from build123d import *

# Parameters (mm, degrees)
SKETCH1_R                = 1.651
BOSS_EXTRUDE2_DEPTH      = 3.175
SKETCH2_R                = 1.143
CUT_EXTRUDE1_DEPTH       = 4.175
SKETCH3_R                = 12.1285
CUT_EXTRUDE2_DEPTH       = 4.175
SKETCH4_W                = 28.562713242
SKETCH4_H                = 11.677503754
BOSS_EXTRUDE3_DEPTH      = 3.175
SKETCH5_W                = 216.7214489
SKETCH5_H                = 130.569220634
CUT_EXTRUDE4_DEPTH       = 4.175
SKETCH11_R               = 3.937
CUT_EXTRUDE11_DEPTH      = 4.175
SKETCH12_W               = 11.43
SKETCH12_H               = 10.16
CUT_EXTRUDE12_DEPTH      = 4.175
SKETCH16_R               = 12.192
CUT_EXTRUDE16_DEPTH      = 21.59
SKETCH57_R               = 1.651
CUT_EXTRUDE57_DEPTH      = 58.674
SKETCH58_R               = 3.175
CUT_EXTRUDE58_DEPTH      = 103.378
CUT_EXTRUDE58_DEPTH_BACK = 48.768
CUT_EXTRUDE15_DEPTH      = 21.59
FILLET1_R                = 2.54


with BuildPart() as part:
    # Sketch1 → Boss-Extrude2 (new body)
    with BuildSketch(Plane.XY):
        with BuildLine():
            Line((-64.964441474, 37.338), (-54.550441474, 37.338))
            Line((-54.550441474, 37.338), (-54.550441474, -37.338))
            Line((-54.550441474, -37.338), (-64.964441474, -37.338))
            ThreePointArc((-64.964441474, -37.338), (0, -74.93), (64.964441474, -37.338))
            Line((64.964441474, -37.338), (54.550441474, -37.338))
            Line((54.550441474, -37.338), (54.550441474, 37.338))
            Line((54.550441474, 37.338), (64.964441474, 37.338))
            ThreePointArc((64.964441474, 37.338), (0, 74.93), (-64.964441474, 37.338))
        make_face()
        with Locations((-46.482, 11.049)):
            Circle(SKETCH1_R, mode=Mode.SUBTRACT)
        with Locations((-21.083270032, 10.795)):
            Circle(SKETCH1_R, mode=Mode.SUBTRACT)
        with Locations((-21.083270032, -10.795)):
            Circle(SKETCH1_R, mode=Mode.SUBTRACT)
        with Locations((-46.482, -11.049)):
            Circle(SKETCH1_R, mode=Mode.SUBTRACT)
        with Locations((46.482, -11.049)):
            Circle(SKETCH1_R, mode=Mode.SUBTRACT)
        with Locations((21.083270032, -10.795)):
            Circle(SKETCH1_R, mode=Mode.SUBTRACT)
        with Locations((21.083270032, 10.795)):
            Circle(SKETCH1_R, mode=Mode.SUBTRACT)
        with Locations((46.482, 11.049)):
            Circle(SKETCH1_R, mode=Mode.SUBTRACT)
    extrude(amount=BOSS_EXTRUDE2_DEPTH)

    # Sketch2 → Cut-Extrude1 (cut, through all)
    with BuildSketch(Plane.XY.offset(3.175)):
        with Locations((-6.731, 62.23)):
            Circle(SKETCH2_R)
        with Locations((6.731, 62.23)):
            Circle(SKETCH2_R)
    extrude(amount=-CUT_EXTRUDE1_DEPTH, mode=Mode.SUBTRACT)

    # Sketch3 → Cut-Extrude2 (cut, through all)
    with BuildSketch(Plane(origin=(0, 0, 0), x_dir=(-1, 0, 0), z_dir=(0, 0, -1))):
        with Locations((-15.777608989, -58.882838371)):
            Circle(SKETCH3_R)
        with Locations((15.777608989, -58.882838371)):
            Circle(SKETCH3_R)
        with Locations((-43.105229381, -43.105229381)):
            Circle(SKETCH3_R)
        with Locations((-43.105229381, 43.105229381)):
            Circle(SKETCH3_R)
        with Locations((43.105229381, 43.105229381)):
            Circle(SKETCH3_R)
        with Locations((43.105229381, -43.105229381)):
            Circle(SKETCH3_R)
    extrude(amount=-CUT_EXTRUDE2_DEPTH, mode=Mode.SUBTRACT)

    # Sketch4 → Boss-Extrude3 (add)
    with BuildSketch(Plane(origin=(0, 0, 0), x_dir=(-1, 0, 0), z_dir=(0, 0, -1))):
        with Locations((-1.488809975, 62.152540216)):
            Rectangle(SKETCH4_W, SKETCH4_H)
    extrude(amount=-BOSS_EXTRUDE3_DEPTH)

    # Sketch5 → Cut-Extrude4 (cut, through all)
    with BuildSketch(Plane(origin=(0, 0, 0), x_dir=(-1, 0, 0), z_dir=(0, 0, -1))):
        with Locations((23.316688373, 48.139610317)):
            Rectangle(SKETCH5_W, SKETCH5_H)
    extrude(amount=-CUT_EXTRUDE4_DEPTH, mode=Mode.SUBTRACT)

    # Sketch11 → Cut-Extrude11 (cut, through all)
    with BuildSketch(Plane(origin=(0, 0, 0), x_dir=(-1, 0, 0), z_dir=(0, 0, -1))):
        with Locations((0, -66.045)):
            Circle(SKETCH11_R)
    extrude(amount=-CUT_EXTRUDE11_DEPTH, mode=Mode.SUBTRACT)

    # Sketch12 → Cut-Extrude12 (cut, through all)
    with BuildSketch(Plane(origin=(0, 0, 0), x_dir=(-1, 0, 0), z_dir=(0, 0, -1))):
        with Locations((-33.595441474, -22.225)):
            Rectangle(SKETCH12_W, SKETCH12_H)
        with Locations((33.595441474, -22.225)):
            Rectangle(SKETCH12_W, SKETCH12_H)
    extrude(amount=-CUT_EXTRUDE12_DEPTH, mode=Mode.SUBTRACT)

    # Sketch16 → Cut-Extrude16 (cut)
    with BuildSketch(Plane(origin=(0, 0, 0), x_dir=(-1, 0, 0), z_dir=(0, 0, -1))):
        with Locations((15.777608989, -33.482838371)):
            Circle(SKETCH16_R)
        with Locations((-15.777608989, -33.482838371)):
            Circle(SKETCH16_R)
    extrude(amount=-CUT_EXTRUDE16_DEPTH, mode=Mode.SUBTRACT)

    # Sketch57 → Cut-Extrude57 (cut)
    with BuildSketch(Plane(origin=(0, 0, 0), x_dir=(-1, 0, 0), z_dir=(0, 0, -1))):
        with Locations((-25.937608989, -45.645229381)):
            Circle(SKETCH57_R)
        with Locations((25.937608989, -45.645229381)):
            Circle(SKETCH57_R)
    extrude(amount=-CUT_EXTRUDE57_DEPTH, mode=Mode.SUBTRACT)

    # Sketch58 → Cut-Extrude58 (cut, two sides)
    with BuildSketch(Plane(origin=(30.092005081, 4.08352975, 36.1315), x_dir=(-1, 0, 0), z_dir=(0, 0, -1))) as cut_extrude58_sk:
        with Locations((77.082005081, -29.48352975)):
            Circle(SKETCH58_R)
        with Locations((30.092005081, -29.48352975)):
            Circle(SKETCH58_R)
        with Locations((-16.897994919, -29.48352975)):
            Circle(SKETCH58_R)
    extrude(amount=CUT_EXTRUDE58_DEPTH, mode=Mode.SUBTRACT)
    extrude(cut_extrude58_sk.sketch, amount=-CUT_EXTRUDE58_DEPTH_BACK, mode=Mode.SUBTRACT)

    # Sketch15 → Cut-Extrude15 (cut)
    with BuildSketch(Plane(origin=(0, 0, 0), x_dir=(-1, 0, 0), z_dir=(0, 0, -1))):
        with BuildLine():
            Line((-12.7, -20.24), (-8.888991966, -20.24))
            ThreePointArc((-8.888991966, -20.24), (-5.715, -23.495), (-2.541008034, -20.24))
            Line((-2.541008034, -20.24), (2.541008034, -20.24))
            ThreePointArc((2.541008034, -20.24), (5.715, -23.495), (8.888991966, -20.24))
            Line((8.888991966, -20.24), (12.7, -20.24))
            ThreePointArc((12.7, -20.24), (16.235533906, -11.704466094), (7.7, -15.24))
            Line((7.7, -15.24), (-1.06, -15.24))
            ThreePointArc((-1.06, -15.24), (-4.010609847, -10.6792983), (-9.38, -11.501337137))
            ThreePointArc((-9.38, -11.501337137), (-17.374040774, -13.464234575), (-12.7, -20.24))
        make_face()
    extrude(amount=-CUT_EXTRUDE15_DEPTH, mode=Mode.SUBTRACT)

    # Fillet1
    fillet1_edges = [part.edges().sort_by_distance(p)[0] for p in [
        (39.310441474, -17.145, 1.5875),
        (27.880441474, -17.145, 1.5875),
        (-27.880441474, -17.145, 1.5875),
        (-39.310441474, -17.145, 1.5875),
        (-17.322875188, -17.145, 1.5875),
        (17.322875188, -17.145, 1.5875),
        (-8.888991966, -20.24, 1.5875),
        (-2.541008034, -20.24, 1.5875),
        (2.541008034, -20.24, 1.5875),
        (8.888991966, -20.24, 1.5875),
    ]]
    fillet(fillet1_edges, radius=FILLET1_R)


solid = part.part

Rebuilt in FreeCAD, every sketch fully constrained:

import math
import FreeCAD as App
import Part
import Sketcher

V = App.Vector
Q = App.Units.Quantity


def edges_at(feature, points):
    """Names of the edges that pass closest to the given points."""
    edges = feature.Shape.Edges
    near = lambda p: min(range(len(edges)), key=lambda i: edges[i].distToShape(Part.Vertex(*p))[0])
    return sorted({f"Edge{near(p) + 1}" for p in points})

doc = App.newDocument("Part")
body = doc.addObject("PartDesign::Body", "Body")

# Sketch on XY plane
sketch1 = body.newObject("Sketcher::SketchObject", "Sketch")
sketch1.AttachmentSupport = (doc.getObject("XY_Plane"), [""])
sketch1.MapMode = "FlatFace"
sketch1.addGeometry([
    Part.LineSegment(V(-65, 37.3, 0), V(-54.6, 37.3, 0)),  # 0
    Part.LineSegment(V(-54.6, 37.3, 0), V(-54.6, -37.3, 0)),  # 1
    Part.LineSegment(V(-54.6, -37.3, 0), V(-65, -37.3, 0)),  # 2
    Part.ArcOfCircle(Part.Circle(V(0, 0, 0), V(0, 0, 1), 74.9), math.radians(-150), math.radians(-30)),  # 3
    Part.LineSegment(V(65, -37.3, 0), V(54.6, -37.3, 0)),  # 4
    Part.LineSegment(V(54.6, -37.3, 0), V(54.6, 37.3, 0)),  # 5
    Part.LineSegment(V(54.6, 37.3, 0), V(65, 37.3, 0)),  # 6
    Part.ArcOfCircle(Part.Circle(V(0, 0, 0), V(0, 0, 1), 74.9), math.radians(30), math.radians(150)),  # 7
    Part.Circle(V(-46.5, -11, 0), V(0, 0, 1), 1.7),  # 8
    Part.Circle(V(-21.1, -10.8, 0), V(0, 0, 1), 1.7),  # 9
    Part.Circle(V(21.1, -10.8, 0), V(0, 0, 1), 1.7),  # 10
    Part.Circle(V(46.5, -11, 0), V(0, 0, 1), 1.7),  # 11
    Part.Circle(V(-46.5, 11, 0), V(0, 0, 1), 1.7),  # 12
    Part.Circle(V(-21.1, 10.8, 0), V(0, 0, 1), 1.7),  # 13
    Part.Circle(V(21.1, 10.8, 0), V(0, 0, 1), 1.7),  # 14
    Part.Circle(V(46.5, 11, 0), V(0, 0, 1), 1.7),  # 15
], False)
sketch1.addConstraint([
    Sketcher.Constraint("Coincident", 0, 2, 1, 1),
    Sketcher.Constraint("Coincident", 1, 2, 2, 1),
    Sketcher.Constraint("Coincident", 2, 2, 3, 1),
    Sketcher.Constraint("Coincident", 3, 2, 4, 1),
    Sketcher.Constraint("Coincident", 4, 2, 5, 1),
    Sketcher.Constraint("Coincident", 5, 2, 6, 1),
    Sketcher.Constraint("Coincident", 6, 2, 7, 1),
    Sketcher.Constraint("Coincident", 7, 2, 0, 1),
    Sketcher.Constraint("Horizontal", 0),
    Sketcher.Constraint("Vertical", 1),
    Sketcher.Constraint("Horizontal", 2),
    Sketcher.Constraint("Horizontal", 4),
    Sketcher.Constraint("Vertical", 5),
    Sketcher.Constraint("Horizontal", 6),
    Sketcher.Constraint("Coincident", 3, 3, -1, 1),
    Sketcher.Constraint("Coincident", 7, 3, -1, 1),
    Sketcher.Constraint("Equal", 3, 7),
    Sketcher.Constraint("Equal", 8, 9),
    Sketcher.Constraint("Equal", 9, 10),
    Sketcher.Constraint("Equal", 10, 11),
    Sketcher.Constraint("Equal", 11, 12),
    Sketcher.Constraint("Equal", 12, 13),
    Sketcher.Constraint("Equal", 13, 14),
    Sketcher.Constraint("Equal", 14, 15),
    Sketcher.Constraint("Symmetric", 11, 3, 12, 3, -1, 1),
    Sketcher.Constraint("Symmetric", 10, 3, 13, 3, -1, 1),
    Sketcher.Constraint("Symmetric", 9, 3, 14, 3, -1, 1),
    Sketcher.Constraint("Symmetric", 8, 3, 15, 3, -1, 1),
    Sketcher.Constraint("Symmetric", 0, 2, 4, 2, -1, 1),
    Sketcher.Constraint("Symmetric", 9, 3, 10, 3, -2),
    Sketcher.Constraint("Symmetric", 8, 3, 11, 3, -2),
    Sketcher.Constraint("Horizontal", 2, 2, 3, 2),
    Sketcher.Constraint("Horizontal", 0, 2, 5, 2),
    Sketcher.Constraint("Diameter", 8, Q("0.13 in")),
    Sketcher.Constraint("Radius", 3, Q("2.95 in")),
    Sketcher.Constraint("DistanceX", 0, 1, 0, 2, Q("0.41 in")),
    Sketcher.Constraint("DistanceY", 1, 2, 1, 1, Q("2.94 in")),
    Sketcher.Constraint("DistanceX", 8, 3, -1, 1, Q("1.83 in")),
    Sketcher.Constraint("DistanceY", 8, 3, 9, 3, Q("0.01 in")),
    Sketcher.Constraint("DistanceY", 8, 3, 12, 3, Q("0.87 in")),
    Sketcher.Constraint("DistanceX", 9, 3, 10, 3, Q("1.6601 in")),
])
pad1 = body.newObject("PartDesign::Pad", "Pad")
pad1.Profile = sketch1
pad1.Length = Q("0.125 in")

# Sketch on XY plane
sketch2 = body.newObject("Sketcher::SketchObject", "Sketch001")
sketch2.AttachmentSupport = (doc.getObject("XY_Plane"), [""])
sketch2.MapMode = "FlatFace"
sketch2.AttachmentOffset = App.Placement(V(0, 0, 0.125 * 25.4), App.Rotation())
sketch2.addGeometry([
    Part.Circle(V(-6.7, 62.2, 0), V(0, 0, 1), 1.1),
    Part.Circle(V(6.7, 62.2, 0), V(0, 0, 1), 1.1),
], False)
sketch2.addConstraint([
    Sketcher.Constraint("Equal", 0, 1),
    Sketcher.Constraint("Symmetric", 0, 3, 1, 3, -2),
    Sketcher.Constraint("Diameter", 0, Q("0.09 in")),
    Sketcher.Constraint("DistanceY", -1, 1, 0, 3, Q("2.45 in")),
    Sketcher.Constraint("DistanceX", 0, 3, 1, 3, Q("0.53 in")),
])
pocket1 = body.newObject("PartDesign::Pocket", "Pocket")
pocket1.Profile = sketch2
pocket1.Type = "ThroughAll"

# Sketch on XY plane
sketch3 = body.newObject("Sketcher::SketchObject", "Sketch002")
sketch3.AttachmentSupport = (doc.getObject("XY_Plane"), [""])
sketch3.MapMode = "FlatFace"
sketch3.addGeometry([
    Part.Circle(V(16, -59, 0), V(0, 0, 1), 12),  # 0
    Part.Circle(V(-16, -59, 0), V(0, 0, 1), 12),  # 1
    Part.Circle(V(43, -43, 0), V(0, 0, 1), 12),  # 2
    Part.Circle(V(43, 43, 0), V(0, 0, 1), 12),  # 3
    Part.Circle(V(-43, 43, 0), V(0, 0, 1), 12),  # 4
    Part.Circle(V(-43, -43, 0), V(0, 0, 1), 12),  # 5
], False)
sketch3.addConstraint([
    Sketcher.Constraint("Equal", 0, 1),
    Sketcher.Constraint("Equal", 1, 2),
    Sketcher.Constraint("Equal", 2, 3),
    Sketcher.Constraint("Equal", 3, 4),
    Sketcher.Constraint("Equal", 4, 5),
    Sketcher.Constraint("Symmetric", 2, 3, 4, 3, -1, 1),
    Sketcher.Constraint("Symmetric", 3, 3, 5, 3, -1, 1),
    Sketcher.Constraint("Symmetric", 0, 3, 1, 3, -2),
    Sketcher.Constraint("Symmetric", 3, 3, 4, 3, -2),
    Sketcher.Constraint("Diameter", 0, Q("0.955 in")),
    Sketcher.Constraint("DistanceX", -1, 1, 0, 3, 15.777609),
    Sketcher.Constraint("DistanceY", 0, 3, -1, 1, 58.882838),
    Sketcher.Constraint("DistanceX", -1, 1, 2, 3, 43.105229),
    Sketcher.Constraint("DistanceY", 2, 3, -1, 1, 43.105229),
])
pocket2 = body.newObject("PartDesign::Pocket", "Pocket001")
pocket2.Profile = sketch3
pocket2.Type = "ThroughAll"
pocket2.Reversed = True

# Sketch on XY plane
sketch4 = body.newObject("Sketcher::SketchObject", "Sketch003")
sketch4.AttachmentSupport = (doc.getObject("XY_Plane"), [""])
sketch4.MapMode = "FlatFace"
sketch4.addGeometry([
    Part.LineSegment(V(16, 68, 0), V(16, 56, 0)),
    Part.LineSegment(V(16, 56, 0), V(-13, 56, 0)),
    Part.LineSegment(V(-13, 56, 0), V(-13, 68, 0)),
    Part.LineSegment(V(-13, 68, 0), V(16, 68, 0)),
], False)
sketch4.addConstraint([
    Sketcher.Constraint("Coincident", 0, 2, 1, 1),
    Sketcher.Constraint("Coincident", 1, 2, 2, 1),
    Sketcher.Constraint("Coincident", 2, 2, 3, 1),
    Sketcher.Constraint("Coincident", 3, 2, 0, 1),
    Sketcher.Constraint("Vertical", 0),
    Sketcher.Constraint("Horizontal", 1),
    Sketcher.Constraint("Vertical", 2),
    Sketcher.Constraint("Horizontal", 3),
    Sketcher.Constraint("DistanceX", 1, 2, 1, 1, 28.562713),
    Sketcher.Constraint("DistanceY", 0, 2, 0, 1, 11.677504),
    Sketcher.Constraint("DistanceY", -1, 1, 0, 2, 56.313788),
    Sketcher.Constraint("DistanceX", -1, 1, 0, 2, 15.770167),
])
pad2 = body.newObject("PartDesign::Pad", "Pad001")
pad2.Profile = sketch4
pad2.Length = Q("0.125 in")

# Sketch on XY plane
sketch5 = body.newObject("Sketcher::SketchObject", "Sketch004")
sketch5.AttachmentSupport = (doc.getObject("XY_Plane"), [""])
sketch5.MapMode = "FlatFace"
sketch5.addGeometry([
    Part.LineSegment(V(85, 113, 0), V(85, -17, 0)),
    Part.LineSegment(V(85, -17, 0), V(-132, -17, 0)),
    Part.LineSegment(V(-132, -17, 0), V(-132, 113, 0)),
    Part.LineSegment(V(-132, 113, 0), V(85, 113, 0)),
], False)
sketch5.addConstraint([
    Sketcher.Constraint("Coincident", 0, 2, 1, 1),
    Sketcher.Constraint("Coincident", 1, 2, 2, 1),
    Sketcher.Constraint("Coincident", 2, 2, 3, 1),
    Sketcher.Constraint("Coincident", 3, 2, 0, 1),
    Sketcher.Constraint("Vertical", 0),
    Sketcher.Constraint("Horizontal", 1),
    Sketcher.Constraint("Vertical", 2),
    Sketcher.Constraint("Horizontal", 3),
    Sketcher.Constraint("DistanceY", 0, 2, -1, 1, Q("0.675 in")),
    Sketcher.Constraint("DistanceX", 1, 2, 1, 1, 216.721449),
    Sketcher.Constraint("DistanceY", 0, 2, 0, 1, 130.569221),
    Sketcher.Constraint("DistanceX", -1, 1, 0, 2, 85.044036),
])
pocket3 = body.newObject("PartDesign::Pocket", "Pocket002")
pocket3.Profile = sketch5
pocket3.Type = "ThroughAll"
pocket3.Reversed = True

# Sketch on XY plane
sketch6 = body.newObject("Sketcher::SketchObject", "Sketch005")
sketch6.AttachmentSupport = (doc.getObject("XY_Plane"), [""])
sketch6.MapMode = "FlatFace"
sketch6.addGeometry(Part.Circle(V(0, -66, 0), V(0, 0, 1), 3.9), False)
sketch6.addConstraint([
    Sketcher.Constraint("PointOnObject", 0, 3, -2),
    Sketcher.Constraint("Diameter", 0, Q("0.31 in")),
    Sketcher.Constraint("DistanceY", 0, 3, -1, 1, 66.045),
])
pocket4 = body.newObject("PartDesign::Pocket", "Pocket003")
pocket4.Profile = sketch6
pocket4.Type = "ThroughAll"
pocket4.Reversed = True

# Sketch on XY plane
sketch7 = body.newObject("Sketcher::SketchObject", "Sketch006")
sketch7.AttachmentSupport = (doc.getObject("XY_Plane"), [""])
sketch7.MapMode = "FlatFace"
sketch7.addGeometry([
    Part.LineSegment(V(39, -17, 0), V(39, -27, 0)),  # 0
    Part.LineSegment(V(39, -27, 0), V(28, -27, 0)),  # 1
    Part.LineSegment(V(28, -27, 0), V(28, -17, 0)),  # 2
    Part.LineSegment(V(28, -17, 0), V(39, -17, 0)),  # 3
    Part.LineSegment(V(-28, -17, 0), V(-28, -27, 0)),  # 4
    Part.LineSegment(V(-28, -27, 0), V(-39, -27, 0)),  # 5
    Part.LineSegment(V(-39, -27, 0), V(-39, -17, 0)),  # 6
    Part.LineSegment(V(-39, -17, 0), V(-28, -17, 0)),  # 7
], False)
sketch7.addConstraint([
    Sketcher.Constraint("Coincident", 0, 2, 1, 1),
    Sketcher.Constraint("Coincident", 1, 2, 2, 1),
    Sketcher.Constraint("Coincident", 2, 2, 3, 1),
    Sketcher.Constraint("Coincident", 3, 2, 0, 1),
    Sketcher.Constraint("Coincident", 4, 2, 5, 1),
    Sketcher.Constraint("Coincident", 5, 2, 6, 1),
    Sketcher.Constraint("Coincident", 6, 2, 7, 1),
    Sketcher.Constraint("Coincident", 7, 2, 4, 1),
    Sketcher.Constraint("Vertical", 0),
    Sketcher.Constraint("Horizontal", 1),
    Sketcher.Constraint("Vertical", 2),
    Sketcher.Constraint("Horizontal", 3),
    Sketcher.Constraint("Vertical", 4),
    Sketcher.Constraint("Horizontal", 5),
    Sketcher.Constraint("Vertical", 6),
    Sketcher.Constraint("Horizontal", 7),
    Sketcher.Constraint("Symmetric", 1, 2, 4, 2, -2),
    Sketcher.Constraint("Symmetric", 3, 2, 6, 2, -2),
    Sketcher.Constraint("DistanceY", 0, 2, 0, 1, Q("0.4 in")),
    Sketcher.Constraint("DistanceX", 1, 2, 1, 1, Q("0.45 in")),
    Sketcher.Constraint("DistanceY", 0, 2, -1, 1, Q("1.075 in")),
    Sketcher.Constraint("DistanceX", -1, 1, 0, 2, 39.310441),
])
pocket5 = body.newObject("PartDesign::Pocket", "Pocket004")
pocket5.Profile = sketch7
pocket5.Type = "ThroughAll"
pocket5.Reversed = True

# Sketch on XY plane
sketch8 = body.newObject("Sketcher::SketchObject", "Sketch007")
sketch8.AttachmentSupport = (doc.getObject("XY_Plane"), [""])
sketch8.MapMode = "FlatFace"
sketch8.addGeometry([
    Part.Circle(V(-16, -33, 0), V(0, 0, 1), 12),
    Part.Circle(V(16, -33, 0), V(0, 0, 1), 12),
], False)
sketch8.addConstraint([
    Sketcher.Constraint("Equal", 0, 1),
    Sketcher.Constraint("Symmetric", 0, 3, 1, 3, -2),
    Sketcher.Constraint("Diameter", 0, Q("0.96 in")),
    Sketcher.Constraint("DistanceX", 0, 3, -1, 1, 15.777609),
    Sketcher.Constraint("DistanceY", 0, 3, -1, 1, 33.482838),
])
pocket6 = body.newObject("PartDesign::Pocket", "Pocket005")
pocket6.Profile = sketch8
pocket6.Length = Q("0.85 in")
pocket6.Reversed = True

# Sketch on XY plane
sketch9 = body.newObject("Sketcher::SketchObject", "Sketch008")
sketch9.AttachmentSupport = (doc.getObject("XY_Plane"), [""])
sketch9.MapMode = "FlatFace"
sketch9.addGeometry([
    Part.Circle(V(25.9, -45.6, 0), V(0, 0, 1), 1.7),
    Part.Circle(V(-25.9, -45.6, 0), V(0, 0, 1), 1.7),
], False)
sketch9.addConstraint([
    Sketcher.Constraint("Equal", 0, 1),
    Sketcher.Constraint("Symmetric", 0, 3, 1, 3, -2),
    Sketcher.Constraint("Diameter", 0, Q("0.13 in")),
    Sketcher.Constraint("DistanceX", -1, 1, 0, 3, 25.937609),
    Sketcher.Constraint("DistanceY", 0, 3, -1, 1, 45.645229),
])
pocket7 = body.newObject("PartDesign::Pocket", "Pocket006")
pocket7.Profile = sketch9
pocket7.Length = Q("2.31 in")
pocket7.Reversed = True

# Sketch on XY plane
sketch10 = body.newObject("Sketcher::SketchObject", "Sketch009")
sketch10.AttachmentSupport = (doc.getObject("XY_Plane"), [""])
sketch10.MapMode = "FlatFace"
sketch10.AttachmentOffset = App.Placement(V(0, 0, 1.4225 * 25.4), App.Rotation())
sketch10.addGeometry([
    Part.Circle(V(-47, -25.4, 0), V(0, 0, 1), 3.2),
    Part.Circle(V(0, -25.4, 0), V(0, 0, 1), 3.2),
    Part.Circle(V(47, -25.4, 0), V(0, 0, 1), 3.2),
], False)
sketch10.addConstraint([
    Sketcher.Constraint("Equal", 0, 1),
    Sketcher.Constraint("Equal", 1, 2),
    Sketcher.Constraint("Symmetric", 0, 3, 2, 3, -2),
    Sketcher.Constraint("PointOnObject", 1, 3, -2),
    Sketcher.Constraint("Horizontal", 0, 3, 1, 3),
    Sketcher.Constraint("Diameter", 0, Q("0.25 in")),
    Sketcher.Constraint("DistanceY", 0, 3, -1, 1, Q("1 in")),
    Sketcher.Constraint("DistanceX", 0, 3, 2, 3, Q("3.7 in")),
])
pocket8 = body.newObject("PartDesign::Pocket", "Pocket007")
pocket8.Profile = sketch10
pocket8.Type = "ThroughAll"
pocket8.Midplane = True

# Sketch on XY plane
sketch11 = body.newObject("Sketcher::SketchObject", "Sketch010")
sketch11.AttachmentSupport = (doc.getObject("XY_Plane"), [""])
sketch11.MapMode = "FlatFace"
sketch11.addGeometry([
    Part.LineSegment(V(12.7, -20.2, 0), V(8.9, -20.2, 0)),  # 0
    Part.ArcOfCircle(Part.Circle(V(5.7, -20.3, 0), V(0, 0, 1), 3.2), math.radians(179), math.radians(361)),  # 1
    Part.LineSegment(V(2.5, -20.2, 0), V(-2.5, -20.2, 0)),  # 2
    Part.ArcOfCircle(Part.Circle(V(-5.7, -20.3, 0), V(0, 0, 1), 3.2), math.radians(179), math.radians(361)),  # 3
    Part.LineSegment(V(-8.9, -20.2, 0), V(-12.7, -20.2, 0)),  # 4
    Part.ArcOfCircle(Part.Circle(V(-12.7, -15.2, 0), V(0, 0, 1), 5), math.radians(0), math.radians(270)),  # 5
    Part.LineSegment(V(-7.7, -15.2, 0), V(1.1, -15.2, 0)),  # 6
    Part.ArcOfCircle(Part.Circle(V(6.1, -15.2, 0), V(0, 0, 1), 5), math.radians(48), math.radians(180)),  # 7
    Part.ArcOfCircle(Part.Circle(V(12.7, -15.2, 0), V(0, 0, 1), 5), math.radians(-90), math.radians(132)),  # 8
], False)
sketch11.addConstraint([
    Sketcher.Constraint("Coincident", 0, 2, 1, 2),
    Sketcher.Constraint("Coincident", 1, 1, 2, 1),
    Sketcher.Constraint("Coincident", 2, 2, 3, 2),
    Sketcher.Constraint("Coincident", 3, 1, 4, 1),
    Sketcher.Constraint("Tangent", 4, 2, 5, 2),
    Sketcher.Constraint("Coincident", 5, 1, 6, 1),
    Sketcher.Constraint("Coincident", 6, 2, 7, 2),
    Sketcher.Constraint("Coincident", 7, 1, 8, 2),
    Sketcher.Constraint("Tangent", 8, 1, 0, 1),
    Sketcher.Constraint("Horizontal", 0),
    Sketcher.Constraint("Horizontal", 2),
    Sketcher.Constraint("Horizontal", 4),
    Sketcher.Constraint("Horizontal", 6),
    Sketcher.Constraint("Equal", 1, 3),
    Sketcher.Constraint("Equal", 5, 7),
    Sketcher.Constraint("Equal", 7, 8),
    Sketcher.Constraint("Symmetric", 1, 3, 3, 3, -2),
    Sketcher.Constraint("Symmetric", 5, 3, 8, 3, -2),
    Sketcher.Constraint("Horizontal", 5, 3, 7, 3),
    Sketcher.Constraint("Horizontal", 0, 2, 1, 1),
    Sketcher.Constraint("Horizontal", 8, 3, 5, 1),
    Sketcher.Constraint("Radius", 1, Q("0.125 in")),
    Sketcher.Constraint("DistanceX", 5, 3, 8, 3, Q("1 in")),
    Sketcher.Constraint("DistanceY", 1, 3, -1, 1, Q("0.8 in")),
    Sketcher.Constraint("DistanceY", 5, 3, -1, 1, Q("0.6 in")),
    Sketcher.Constraint("Radius", 5, 5.0),
    Sketcher.Constraint("DistanceX", 3, 3, 1, 3, Q("0.45 in")),
    Sketcher.Constraint("DistanceX", 6, 1, 6, 2, 8.76),
])
pocket9 = body.newObject("PartDesign::Pocket", "Pocket008")
pocket9.Profile = sketch11
pocket9.Length = Q("0.85 in")
pocket9.Reversed = True
doc.recompute()

fillet = body.newObject("PartDesign::Fillet", "Fillet")
fillet.Base = (pocket9, edges_at(pocket9, [
    (39.31, -17.145, 1.587),
    (27.88, -17.145, 1.587),
    (-27.88, -17.145, 1.587),
    (-39.31, -17.145, 1.587),
    (-17.323, -17.145, 1.587),
    (17.323, -17.145, 1.587),
    (-8.889, -20.24, 1.587),
    (-2.541, -20.24, 1.587),
    (2.541, -20.24, 1.587),
    (8.889, -20.24, 1.587),
]))
fillet.Radius = Q("0.1 in")

doc.recompute()
